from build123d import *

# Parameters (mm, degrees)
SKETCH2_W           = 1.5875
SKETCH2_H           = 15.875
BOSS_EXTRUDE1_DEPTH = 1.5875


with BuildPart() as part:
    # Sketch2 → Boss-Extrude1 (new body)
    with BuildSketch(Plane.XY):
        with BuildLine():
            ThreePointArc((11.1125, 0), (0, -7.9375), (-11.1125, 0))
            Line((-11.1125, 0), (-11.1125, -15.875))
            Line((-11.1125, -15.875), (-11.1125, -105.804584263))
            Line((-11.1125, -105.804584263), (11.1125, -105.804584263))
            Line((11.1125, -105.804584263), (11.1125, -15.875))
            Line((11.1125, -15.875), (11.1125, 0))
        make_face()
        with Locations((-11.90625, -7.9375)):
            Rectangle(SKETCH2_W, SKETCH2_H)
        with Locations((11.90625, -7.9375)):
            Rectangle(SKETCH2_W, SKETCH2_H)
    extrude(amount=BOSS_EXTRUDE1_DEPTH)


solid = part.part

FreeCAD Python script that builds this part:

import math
import FreeCAD as App
import Part
import Sketcher
Q = App.Units.Quantity

doc = App.newDocument("Part")
body = doc.addObject("PartDesign::Body", "Body")

# Sketch on XY plane
sketch1 = body.newObject("Sketcher::SketchObject", "Sketch")
sketch1.AttachmentSupport = (doc.getObject("XY_Plane"), [""])
sketch1.MapMode = "FlatFace"
sketch1.addGeometry([
    Part.ArcOfCircle(Part.Circle(App.Vector(0, 3.81, 0), App.Vector(0, 0, 1), 11.7475), math.radians(-161.075356), math.radians(-18.924644)),  # 0
    Part.LineSegment(App.Vector(-11.1125, 0, 0), App.Vector(-12.7, 0, 0)),  # 1
    Part.LineSegment(App.Vector(-12.7, 0, 0), App.Vector(-12.7, -15.875, 0)),  # 2
    Part.LineSegment(App.Vector(-12.7, -15.875, 0), App.Vector(-11.1125, -15.875, 0)),  # 3
    Part.LineSegment(App.Vector(-11.1125, -15.875, 0), App.Vector(-11.1125, -105.804584, 0)),  # 4
    Part.LineSegment(App.Vector(-11.1125, -105.804584, 0), App.Vector(11.1125, -105.804584, 0)),  # 5
    Part.LineSegment(App.Vector(11.1125, -105.804584, 0), App.Vector(11.1125, -15.875, 0)),  # 6
    Part.LineSegment(App.Vector(11.1125, -15.875, 0), App.Vector(12.7, -15.875, 0)),  # 7
    Part.LineSegment(App.Vector(12.7, -15.875, 0), App.Vector(12.7, 0, 0)),  # 8
    Part.LineSegment(App.Vector(12.7, 0, 0), App.Vector(11.1125, 0, 0)),  # 9
], False)
sketch1.addConstraint([
    Sketcher.Constraint("Coincident", 0, 1, 1, 1),
    Sketcher.Constraint("Coincident", 1, 2, 2, 1),
    Sketcher.Constraint("Coincident", 2, 2, 3, 1),
    Sketcher.Constraint("Coincident", 3, 2, 4, 1),
    Sketcher.Constraint("Coincident", 4, 2, 5, 1),
    Sketcher.Constraint("Coincident", 5, 2, 6, 1),
    Sketcher.Constraint("Coincident", 6, 2, 7, 1),
    Sketcher.Constraint("Coincident", 7, 2, 8, 1),
    Sketcher.Constraint("Coincident", 8, 2, 9, 1),
    Sketcher.Constraint("Coincident", 9, 2, 0, 2),
    Sketcher.Constraint("Horizontal", 1),
    Sketcher.Constraint("Vertical", 2),
    Sketcher.Constraint("Horizontal", 3),
    Sketcher.Constraint("Vertical", 4),
    Sketcher.Constraint("Horizontal", 5),
    Sketcher.Constraint("Vertical", 6),
    Sketcher.Constraint("Horizontal", 7),
    Sketcher.Constraint("Vertical", 8),
    Sketcher.Constraint("Horizontal", 9),
    Sketcher.Constraint("Symmetric", 1, 2, 8, 2, -1, 1),
    Sketcher.Constraint("Symmetric", 3, 2, 6, 2, -2),
    Sketcher.Constraint("Symmetric", 0, 1, 9, 2, -2),
    Sketcher.Constraint("Vertical", 0, 1, 3, 2),
    Sketcher.Constraint("DistanceX", 2, 2, 7, 2, Q("1 in")),
    Sketcher.Constraint("Radius", 0, Q("0.4625 in")),
    Sketcher.Constraint("DistanceX", 1, 2, 1, 1, Q("0.0625 in")),
    Sketcher.Constraint("DistanceY", 2, 2, 2, 1, Q("0.625 in")),
    Sketcher.Constraint("DistanceY", 4, 2, 4, 1, Q("89.929584 mm")),
])
pad1 = body.newObject("PartDesign::Pad", "Pad")
pad1.Profile = sketch1
pad1.Length = Q("0.0625 in")

doc.recompute()
